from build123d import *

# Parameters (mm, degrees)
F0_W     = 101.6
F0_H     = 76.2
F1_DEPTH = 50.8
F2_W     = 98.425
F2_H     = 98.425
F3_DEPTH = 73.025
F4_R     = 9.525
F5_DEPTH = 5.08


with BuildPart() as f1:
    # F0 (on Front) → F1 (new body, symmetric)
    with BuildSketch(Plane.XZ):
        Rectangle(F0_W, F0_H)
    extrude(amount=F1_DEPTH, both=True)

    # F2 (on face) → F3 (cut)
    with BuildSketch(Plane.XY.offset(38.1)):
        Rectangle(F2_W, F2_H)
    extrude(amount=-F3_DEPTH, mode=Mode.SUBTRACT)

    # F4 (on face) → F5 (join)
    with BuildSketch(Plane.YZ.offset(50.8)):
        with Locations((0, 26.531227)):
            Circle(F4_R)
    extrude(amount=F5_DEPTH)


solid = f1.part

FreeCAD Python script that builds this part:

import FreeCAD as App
import Part
import Sketcher
Q = App.Units.Quantity

doc = App.newDocument("Part")
body = doc.addObject("PartDesign::Body", "Body")

# Sketch on XZ plane
sketch1 = body.newObject("Sketcher::SketchObject", "Sketch")
sketch1.AttachmentSupport = (doc.getObject("XZ_Plane"), [""])
sketch1.MapMode = "FlatFace"
sketch1.addGeometry([
    Part.LineSegment(App.Vector(-50.8, 38.1, 0), App.Vector(-50.8, -38.1, 0)),
    Part.LineSegment(App.Vector(-50.8, -38.1, 0), App.Vector(50.8, -38.1, 0)),
    Part.LineSegment(App.Vector(50.8, -38.1, 0), App.Vector(50.8, 38.1, 0)),
    Part.LineSegment(App.Vector(50.8, 38.1, 0), App.Vector(-50.8, 38.1, 0)),
], False)
sketch1.addConstraint([
    Sketcher.Constraint("Coincident", 0, 2, 1, 1),
    Sketcher.Constraint("Coincident", 1, 2, 2, 1),
    Sketcher.Constraint("Coincident", 2, 2, 3, 1),
    Sketcher.Constraint("Coincident", 3, 2, 0, 1),
    Sketcher.Constraint("Vertical", 0),
    Sketcher.Constraint("Horizontal", 1),
    Sketcher.Constraint("Vertical", 2),
    Sketcher.Constraint("Horizontal", 3),
    Sketcher.Constraint("Symmetric", 0, 2, 2, 2, -1, 1),
    Sketcher.Constraint("DistanceX", 1, 1, 1, 2, Q("4 in")),
    Sketcher.Constraint("DistanceY", 0, 2, 0, 1, Q("3 in")),
])
pad1 = body.newObject("PartDesign::Pad", "Pad")
pad1.Profile = sketch1
pad1.Length = Q("4 in")
pad1.Midplane = True

# Sketch on XY plane
sketch2 = body.newObject("Sketcher::SketchObject", "Sketch001")
sketch2.AttachmentSupport = (doc.getObject("XY_Plane"), [""])
sketch2.MapMode = "FlatFace"
sketch2.AttachmentOffset = App.Placement(App.Vector(0, 0, 1.5 * 25.4), App.Rotation())
sketch2.addGeometry([
    Part.LineSegment(App.Vector(-49.2125, 49.2125, 0), App.Vector(-49.2125, -49.2125, 0)),
    Part.LineSegment(App.Vector(-49.2125, -49.2125, 0), App.Vector(49.2125, -49.2125, 0)),
    Part.LineSegment(App.Vector(49.2125, -49.2125, 0), App.Vector(49.2125, 49.2125, 0)),
    Part.LineSegment(App.Vector(49.2125, 49.2125, 0), App.Vector(-49.2125, 49.2125, 0)),
], False)
sketch2.addConstraint([
    Sketcher.Constraint("Coincident", 0, 2, 1, 1),
    Sketcher.Constraint("Coincident", 1, 2, 2, 1),
    Sketcher.Constraint("Coincident", 2, 2, 3, 1),
    Sketcher.Constraint("Coincident", 3, 2, 0, 1),
    Sketcher.Constraint("Vertical", 0),
    Sketcher.Constraint("Horizontal", 1),
    Sketcher.Constraint("Vertical", 2),
    Sketcher.Constraint("Horizontal", 3),
    Sketcher.Constraint("Symmetric", 0, 2, 2, 2, -1, 1),
    Sketcher.Constraint("Equal", 3, 0),
    Sketcher.Constraint("DistanceX", 1, 1, 1, 2, Q("3.875 in")),
])
pocket1 = body.newObject("PartDesign::Pocket", "Pocket")
pocket1.Profile = sketch2
pocket1.Length = Q("2.875 in")

# Sketch on YZ plane
sketch3 = body.newObject("Sketcher::SketchObject", "Sketch002")
sketch3.AttachmentSupport = (doc.getObject("YZ_Plane"), [""])
sketch3.MapMode = "FlatFace"
sketch3.AttachmentOffset = App.Placement(App.Vector(0, 0, 2 * 25.4), App.Rotation())
sketch3.addGeometry(Part.Circle(App.Vector(0, 26.531227, 0), App.Vector(0, 0, 1), 9.525), False)
sketch3.addConstraint([
    Sketcher.Constraint("PointOnObject", 0, 3, -2),
    Sketcher.Constraint("Diameter", 0, Q("0.75 in")),
    Sketcher.Constraint("DistanceY", -1, 1, 0, 3, 26.531227),
])
pad2 = body.newObject("PartDesign::Pad", "Pad001")
pad2.Profile = sketch3
pad2.Length = Q("0.2 in")

doc.recompute()
